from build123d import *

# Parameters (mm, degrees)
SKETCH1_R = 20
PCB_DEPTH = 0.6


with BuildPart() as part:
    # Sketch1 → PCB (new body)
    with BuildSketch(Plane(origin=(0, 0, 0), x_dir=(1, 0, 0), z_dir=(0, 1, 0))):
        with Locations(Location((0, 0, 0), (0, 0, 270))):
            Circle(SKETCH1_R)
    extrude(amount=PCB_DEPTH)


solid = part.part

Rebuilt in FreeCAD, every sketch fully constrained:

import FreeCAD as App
import Part
import Sketcher
from FreeCAD import Vector

doc = App.newDocument("Part")
body = doc.addObject("PartDesign::Body", "Body")

sketch1 = doc.addObject("Sketcher::SketchObject", "Sketch")
body.addObject(sketch1)
sketch1.AttachmentSupport = (doc.XZ_Plane, [""])
sketch1.MapMode = "FlatFace"
sketch1.addGeometry(Part.Circle(Vector(0, 0, 0), Vector(0, 0, 1), 20), False)
sketch1.addConstraint(Sketcher.Constraint("Coincident", 0, 3, -1, 1))
sketch1.addConstraint(Sketcher.Constraint("Diameter", 0, 40.0))
pad1 = doc.addObject("PartDesign::Pad", "Pad")
body.addObject(pad1)
pad1.Profile = sketch1
pad1.Length = 0.6
pad1.Reversed = True

doc.recompute()
